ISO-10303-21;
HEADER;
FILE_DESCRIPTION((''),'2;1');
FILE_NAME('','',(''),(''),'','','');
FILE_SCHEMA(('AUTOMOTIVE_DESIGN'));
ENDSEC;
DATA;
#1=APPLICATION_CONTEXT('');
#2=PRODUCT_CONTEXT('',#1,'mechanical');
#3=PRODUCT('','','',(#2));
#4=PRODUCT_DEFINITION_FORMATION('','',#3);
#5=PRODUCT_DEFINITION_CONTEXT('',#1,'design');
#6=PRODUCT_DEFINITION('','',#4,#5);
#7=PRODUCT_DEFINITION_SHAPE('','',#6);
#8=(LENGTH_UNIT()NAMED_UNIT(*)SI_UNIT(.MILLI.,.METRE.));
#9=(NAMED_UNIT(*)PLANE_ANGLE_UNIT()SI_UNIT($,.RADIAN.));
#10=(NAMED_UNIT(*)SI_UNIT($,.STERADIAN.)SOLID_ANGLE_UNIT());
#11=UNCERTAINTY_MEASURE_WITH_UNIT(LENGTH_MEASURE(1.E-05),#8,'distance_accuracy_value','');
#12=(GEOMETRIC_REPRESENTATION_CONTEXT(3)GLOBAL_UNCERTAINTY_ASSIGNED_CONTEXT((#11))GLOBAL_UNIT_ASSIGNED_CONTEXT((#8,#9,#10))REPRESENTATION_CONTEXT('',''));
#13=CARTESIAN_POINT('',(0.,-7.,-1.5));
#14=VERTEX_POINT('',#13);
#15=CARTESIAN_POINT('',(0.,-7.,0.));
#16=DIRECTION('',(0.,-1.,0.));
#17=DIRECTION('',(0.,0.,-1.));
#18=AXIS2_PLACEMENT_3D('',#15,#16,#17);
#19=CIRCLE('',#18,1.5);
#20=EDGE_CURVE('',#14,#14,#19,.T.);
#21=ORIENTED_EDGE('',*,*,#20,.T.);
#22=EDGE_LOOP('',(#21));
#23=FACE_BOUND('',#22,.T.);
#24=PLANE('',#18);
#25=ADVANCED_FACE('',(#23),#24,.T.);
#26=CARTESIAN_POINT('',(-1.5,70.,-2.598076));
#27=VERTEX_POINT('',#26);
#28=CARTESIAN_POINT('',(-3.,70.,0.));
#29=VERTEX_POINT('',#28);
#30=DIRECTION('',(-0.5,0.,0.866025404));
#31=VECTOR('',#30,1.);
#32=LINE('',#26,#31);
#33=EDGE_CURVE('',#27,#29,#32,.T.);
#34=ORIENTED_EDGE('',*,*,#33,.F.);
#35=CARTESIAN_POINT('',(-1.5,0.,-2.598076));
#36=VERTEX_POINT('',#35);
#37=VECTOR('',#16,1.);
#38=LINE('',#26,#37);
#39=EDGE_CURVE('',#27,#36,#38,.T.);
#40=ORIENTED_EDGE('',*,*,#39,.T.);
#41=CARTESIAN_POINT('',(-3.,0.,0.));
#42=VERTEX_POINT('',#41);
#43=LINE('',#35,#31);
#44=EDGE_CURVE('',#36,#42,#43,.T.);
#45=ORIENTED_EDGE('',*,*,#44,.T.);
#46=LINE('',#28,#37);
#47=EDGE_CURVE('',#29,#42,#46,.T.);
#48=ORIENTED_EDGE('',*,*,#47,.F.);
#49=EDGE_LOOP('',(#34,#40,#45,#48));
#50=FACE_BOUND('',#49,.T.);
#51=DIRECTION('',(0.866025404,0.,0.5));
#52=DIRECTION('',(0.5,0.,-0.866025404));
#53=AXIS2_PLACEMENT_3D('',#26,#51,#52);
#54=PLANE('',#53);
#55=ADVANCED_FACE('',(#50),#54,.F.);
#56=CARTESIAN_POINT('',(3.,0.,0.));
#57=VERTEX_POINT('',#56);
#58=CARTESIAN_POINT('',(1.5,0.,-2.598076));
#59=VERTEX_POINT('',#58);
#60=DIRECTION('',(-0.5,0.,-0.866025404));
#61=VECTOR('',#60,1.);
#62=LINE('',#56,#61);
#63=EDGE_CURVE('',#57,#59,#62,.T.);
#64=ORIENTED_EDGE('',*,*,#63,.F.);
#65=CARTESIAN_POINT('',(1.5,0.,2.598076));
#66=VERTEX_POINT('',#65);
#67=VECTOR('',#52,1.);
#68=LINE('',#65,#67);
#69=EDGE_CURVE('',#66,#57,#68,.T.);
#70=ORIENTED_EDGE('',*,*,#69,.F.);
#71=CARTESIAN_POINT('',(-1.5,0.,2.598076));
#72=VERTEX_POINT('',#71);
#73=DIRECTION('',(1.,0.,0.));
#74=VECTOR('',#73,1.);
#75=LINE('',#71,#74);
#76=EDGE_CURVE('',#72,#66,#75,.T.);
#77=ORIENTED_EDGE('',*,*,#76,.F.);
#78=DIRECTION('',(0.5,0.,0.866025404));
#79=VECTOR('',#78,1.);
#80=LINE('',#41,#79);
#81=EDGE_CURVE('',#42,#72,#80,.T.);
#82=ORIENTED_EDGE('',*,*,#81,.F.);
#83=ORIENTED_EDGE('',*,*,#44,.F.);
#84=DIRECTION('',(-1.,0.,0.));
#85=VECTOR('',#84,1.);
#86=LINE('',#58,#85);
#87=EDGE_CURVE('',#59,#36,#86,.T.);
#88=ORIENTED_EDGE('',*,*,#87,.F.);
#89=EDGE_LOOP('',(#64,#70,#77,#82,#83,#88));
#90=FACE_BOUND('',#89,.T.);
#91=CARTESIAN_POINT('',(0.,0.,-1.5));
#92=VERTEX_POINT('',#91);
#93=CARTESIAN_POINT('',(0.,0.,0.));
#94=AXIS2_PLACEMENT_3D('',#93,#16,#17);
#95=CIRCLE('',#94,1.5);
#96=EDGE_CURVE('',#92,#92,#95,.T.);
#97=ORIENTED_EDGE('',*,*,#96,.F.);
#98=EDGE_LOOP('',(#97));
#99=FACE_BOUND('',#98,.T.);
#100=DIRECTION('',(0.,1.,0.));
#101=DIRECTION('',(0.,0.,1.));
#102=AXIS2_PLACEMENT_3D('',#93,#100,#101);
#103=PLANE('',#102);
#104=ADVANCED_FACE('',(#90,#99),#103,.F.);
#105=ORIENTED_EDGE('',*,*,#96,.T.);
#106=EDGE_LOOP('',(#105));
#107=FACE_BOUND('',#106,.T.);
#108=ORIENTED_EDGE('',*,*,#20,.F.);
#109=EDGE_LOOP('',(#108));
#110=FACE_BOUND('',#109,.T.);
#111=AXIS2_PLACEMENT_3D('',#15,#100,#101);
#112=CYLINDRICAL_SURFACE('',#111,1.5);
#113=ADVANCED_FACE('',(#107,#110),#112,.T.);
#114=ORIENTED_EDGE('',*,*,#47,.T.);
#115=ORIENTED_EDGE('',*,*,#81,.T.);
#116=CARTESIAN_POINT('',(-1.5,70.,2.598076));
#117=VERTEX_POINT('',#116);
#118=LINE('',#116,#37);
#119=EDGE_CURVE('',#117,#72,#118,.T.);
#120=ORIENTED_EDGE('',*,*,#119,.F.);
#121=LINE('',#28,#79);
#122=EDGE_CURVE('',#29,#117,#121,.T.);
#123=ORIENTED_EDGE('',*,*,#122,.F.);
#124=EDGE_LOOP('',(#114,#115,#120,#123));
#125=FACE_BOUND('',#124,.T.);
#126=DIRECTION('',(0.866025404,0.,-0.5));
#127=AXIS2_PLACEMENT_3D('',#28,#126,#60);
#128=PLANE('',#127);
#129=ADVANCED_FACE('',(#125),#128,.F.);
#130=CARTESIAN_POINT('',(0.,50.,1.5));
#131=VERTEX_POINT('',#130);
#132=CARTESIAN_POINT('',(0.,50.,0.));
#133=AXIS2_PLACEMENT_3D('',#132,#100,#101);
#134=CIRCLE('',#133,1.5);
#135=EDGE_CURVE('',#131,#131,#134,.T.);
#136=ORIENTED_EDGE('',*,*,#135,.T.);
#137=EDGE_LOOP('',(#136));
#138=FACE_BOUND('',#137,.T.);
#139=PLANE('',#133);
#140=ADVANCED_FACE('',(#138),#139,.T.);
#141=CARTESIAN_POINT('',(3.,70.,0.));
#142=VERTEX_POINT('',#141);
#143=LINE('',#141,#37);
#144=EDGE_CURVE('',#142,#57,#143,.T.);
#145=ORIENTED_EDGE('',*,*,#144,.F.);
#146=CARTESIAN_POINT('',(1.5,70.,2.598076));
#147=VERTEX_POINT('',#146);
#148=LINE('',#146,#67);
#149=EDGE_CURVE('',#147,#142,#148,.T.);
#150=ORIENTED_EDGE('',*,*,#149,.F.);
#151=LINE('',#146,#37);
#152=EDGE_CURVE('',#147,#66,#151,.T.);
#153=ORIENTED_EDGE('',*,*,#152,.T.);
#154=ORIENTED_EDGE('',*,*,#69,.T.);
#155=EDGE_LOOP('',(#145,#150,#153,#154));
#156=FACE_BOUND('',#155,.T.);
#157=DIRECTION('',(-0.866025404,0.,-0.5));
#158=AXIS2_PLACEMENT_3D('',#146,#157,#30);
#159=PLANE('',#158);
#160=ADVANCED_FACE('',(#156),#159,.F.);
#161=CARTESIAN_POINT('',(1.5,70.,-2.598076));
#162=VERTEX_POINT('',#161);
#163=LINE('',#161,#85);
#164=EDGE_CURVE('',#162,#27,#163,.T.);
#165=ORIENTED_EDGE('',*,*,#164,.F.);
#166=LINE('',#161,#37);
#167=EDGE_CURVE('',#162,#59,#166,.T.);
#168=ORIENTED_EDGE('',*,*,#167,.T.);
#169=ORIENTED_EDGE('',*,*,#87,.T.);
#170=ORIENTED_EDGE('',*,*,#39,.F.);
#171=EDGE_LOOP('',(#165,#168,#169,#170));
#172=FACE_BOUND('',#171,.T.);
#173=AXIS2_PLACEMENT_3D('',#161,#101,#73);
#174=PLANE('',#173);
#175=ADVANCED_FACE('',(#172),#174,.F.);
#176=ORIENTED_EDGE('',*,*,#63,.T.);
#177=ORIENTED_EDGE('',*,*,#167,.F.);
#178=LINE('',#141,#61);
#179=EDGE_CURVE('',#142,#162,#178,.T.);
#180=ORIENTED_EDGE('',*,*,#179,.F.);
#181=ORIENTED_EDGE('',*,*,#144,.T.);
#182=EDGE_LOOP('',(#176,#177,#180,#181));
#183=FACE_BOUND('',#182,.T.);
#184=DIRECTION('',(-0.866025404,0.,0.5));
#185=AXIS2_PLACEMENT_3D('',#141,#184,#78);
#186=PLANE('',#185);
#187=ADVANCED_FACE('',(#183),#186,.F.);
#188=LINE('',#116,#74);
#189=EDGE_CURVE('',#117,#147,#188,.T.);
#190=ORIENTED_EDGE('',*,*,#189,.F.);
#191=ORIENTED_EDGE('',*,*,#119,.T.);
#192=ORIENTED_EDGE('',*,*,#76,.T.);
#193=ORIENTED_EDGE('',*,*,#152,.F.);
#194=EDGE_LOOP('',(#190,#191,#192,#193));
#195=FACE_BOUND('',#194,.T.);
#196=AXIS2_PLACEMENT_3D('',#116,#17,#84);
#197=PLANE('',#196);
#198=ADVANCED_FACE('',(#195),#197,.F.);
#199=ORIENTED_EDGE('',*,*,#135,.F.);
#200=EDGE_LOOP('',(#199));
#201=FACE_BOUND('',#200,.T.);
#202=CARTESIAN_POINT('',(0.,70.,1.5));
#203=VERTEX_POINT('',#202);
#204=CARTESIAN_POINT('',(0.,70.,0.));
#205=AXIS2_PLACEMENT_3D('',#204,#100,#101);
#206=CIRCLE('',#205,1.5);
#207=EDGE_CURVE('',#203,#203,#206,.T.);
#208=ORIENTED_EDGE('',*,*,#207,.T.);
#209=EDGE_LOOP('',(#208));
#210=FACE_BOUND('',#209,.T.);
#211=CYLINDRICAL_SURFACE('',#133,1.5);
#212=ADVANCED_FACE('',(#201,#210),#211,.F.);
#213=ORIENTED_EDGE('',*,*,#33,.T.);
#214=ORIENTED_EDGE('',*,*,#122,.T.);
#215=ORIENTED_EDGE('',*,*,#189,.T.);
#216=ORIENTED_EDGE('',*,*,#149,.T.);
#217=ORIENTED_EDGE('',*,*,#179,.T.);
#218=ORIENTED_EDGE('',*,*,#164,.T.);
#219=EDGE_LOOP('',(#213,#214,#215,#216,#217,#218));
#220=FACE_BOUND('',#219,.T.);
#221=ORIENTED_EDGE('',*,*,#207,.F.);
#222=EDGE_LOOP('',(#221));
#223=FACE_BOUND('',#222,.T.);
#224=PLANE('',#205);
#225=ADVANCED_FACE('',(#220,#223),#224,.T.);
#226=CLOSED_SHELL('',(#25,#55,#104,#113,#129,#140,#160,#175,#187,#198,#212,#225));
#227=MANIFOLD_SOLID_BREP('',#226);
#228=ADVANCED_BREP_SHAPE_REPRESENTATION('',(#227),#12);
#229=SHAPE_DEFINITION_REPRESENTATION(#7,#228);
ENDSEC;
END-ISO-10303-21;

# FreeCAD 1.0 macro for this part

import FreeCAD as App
import Part
import Sketcher
Q = App.Units.Quantity


def add_polygon(sketch, points):
    """Adds a closed chain of lines whose ends are joined by coincident constraints."""
    first, n = sketch.GeometryCount, len(points)
    for a, b in zip(points, points[1:] + points[:1]):
        sketch.addGeometry(Part.LineSegment(App.Vector(*a, 0), App.Vector(*b, 0)), False)
    for i in range(n):
        sketch.addConstraint(Sketcher.Constraint("Coincident", first + i, 2, first + (i + 1) % n, 1))

doc = App.newDocument("Part")
params = doc.addObject("Spreadsheet::Sheet", "Params")
for row, (alias, value) in enumerate([
    ("sketch1_width", "3 mm"),
    ("sketch1_length", "3 mm"),
    ("pad1_length", "70 mm"),
    ("sketch2_diameter", "3 mm"),
    ("pocket1_length", "20 mm"),
    ("sketch3_diameter", "3 mm"),
    ("pad2_length", "7 mm"),
], start=1):
    params.set(f"A{row}", alias)
    params.set(f"B{row}", "=" + value)
    params.setAlias(f"B{row}", alias)

body = doc.addObject("PartDesign::Body", "Body")

sketch1 = body.newObject("Sketcher::SketchObject", "Sketch")
sketch1.AttachmentSupport = (doc.getObject("XZ_Plane"), [""])
sketch1.MapMode = "FlatFace"
add_polygon(sketch1, [(3, 0), (1.5, -2.6), (-1.5, -2.6), (-3, 0), (-1.5, 2.6), (1.5, 2.6)])
sketch1.addConstraint([
    Sketcher.Constraint("Horizontal", 1),
    Sketcher.Constraint("Horizontal", 4),
    Sketcher.Constraint("Symmetric", 0, 2, 3, 2, -1, 1),
    Sketcher.Constraint("Symmetric", 2, 2, 5, 2, -1, 1),
    Sketcher.Constraint("PointOnObject", 2, 2, -1),
    Sketcher.Constraint("Parallel", 2, 5),
    Sketcher.Constraint("Vertical", 1, 2, 3, 2),
    Sketcher.Constraint("DistanceX", 1, 2, 1, 1, Q("3 mm")),
    Sketcher.Constraint("Angle", 0, Q("-120 deg")),
    Sketcher.Constraint("Distance", 0, Q("3 mm")),
])
sketch1.setExpression("Constraints[13]", "Params.sketch1_width")
sketch1.setExpression("Constraints[15]", "Params.sketch1_length")
pad1 = body.newObject("PartDesign::Pad", "Pad")
pad1.Profile = sketch1
pad1.setExpression("Length", "Params.pad1_length")
pad1.Reversed = True

sketch2 = body.newObject("Sketcher::SketchObject", "Sketch001")
sketch2.AttachmentSupport = (doc.getObject("XZ_Plane"), [""])
sketch2.MapMode = "FlatFace"
sketch2.AttachmentOffset = App.Placement(App.Vector(0, 0, -70), App.Rotation())
sketch2.addGeometry(Part.Circle(App.Vector(0, 0, 0), App.Vector(0, 0, 1), 1.5), False)
sketch2.addConstraint([
    Sketcher.Constraint("Coincident", 0, 3, -1, 1),
    Sketcher.Constraint("Diameter", 0, Q("3 mm")),
])
sketch2.setExpression("Constraints[1]", "Params.sketch2_diameter")
pocket1 = body.newObject("PartDesign::Pocket", "Pocket")
pocket1.Profile = sketch2
pocket1.setExpression("Length", "Params.pocket1_length")
pocket1.Reversed = True

sketch3 = body.newObject("Sketcher::SketchObject", "Sketch002")
sketch3.AttachmentSupport = (doc.getObject("XZ_Plane"), [""])
sketch3.MapMode = "FlatFace"
sketch3.addGeometry(Part.Circle(App.Vector(0, 0, 0), App.Vector(0, 0, 1), 1.5), False)
sketch3.addConstraint([
    Sketcher.Constraint("Coincident", 0, 3, -1, 1),
    Sketcher.Constraint("Diameter", 0, Q("3 mm")),
])
sketch3.setExpression("Constraints[1]", "Params.sketch3_diameter")
pad2 = body.newObject("PartDesign::Pad", "Pad001")
pad2.Profile = sketch3
pad2.setExpression("Length", "Params.pad2_length")

doc.recompute()
